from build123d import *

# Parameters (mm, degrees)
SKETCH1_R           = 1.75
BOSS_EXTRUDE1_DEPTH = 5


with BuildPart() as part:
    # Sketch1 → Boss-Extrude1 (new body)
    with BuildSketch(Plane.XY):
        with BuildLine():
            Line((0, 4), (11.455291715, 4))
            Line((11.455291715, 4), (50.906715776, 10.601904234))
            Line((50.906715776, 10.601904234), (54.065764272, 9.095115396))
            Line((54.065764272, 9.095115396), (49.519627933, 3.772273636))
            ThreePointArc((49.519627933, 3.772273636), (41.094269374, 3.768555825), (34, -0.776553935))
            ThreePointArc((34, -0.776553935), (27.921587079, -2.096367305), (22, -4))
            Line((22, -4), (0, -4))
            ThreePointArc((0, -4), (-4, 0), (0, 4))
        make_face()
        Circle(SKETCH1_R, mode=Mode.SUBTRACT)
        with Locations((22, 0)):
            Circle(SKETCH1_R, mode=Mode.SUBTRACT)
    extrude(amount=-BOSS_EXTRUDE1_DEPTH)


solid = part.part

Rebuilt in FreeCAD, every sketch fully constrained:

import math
import FreeCAD as App
import Part
import Sketcher
Q = App.Units.Quantity

doc = App.newDocument("Part")
body = doc.addObject("PartDesign::Body", "Body")

# Sketch on XY plane
sketch1 = body.newObject("Sketcher::SketchObject", "Sketch")
sketch1.AttachmentSupport = (doc.getObject("XY_Plane"), [""])
sketch1.MapMode = "FlatFace"
sketch1.addGeometry(Part.LineSegment(App.Vector(11.5, 4, 0), App.Vector(0, 4, 0)), False)
sketch1.addGeometry(Part.ArcOfCircle(Part.Circle(App.Vector(0, 0, 0), App.Vector(0, 0, 1), 4), math.radians(90), math.radians(270)), False)
sketch1.addGeometry(Part.LineSegment(App.Vector(0, -4, 0), App.Vector(22, -4, 0)), False)
sketch1.addGeometry(Part.ArcOfCircle(Part.Circle(App.Vector(44.5, -63.9, 0), App.Vector(0, 0, 1), 64), math.radians(99.47), math.radians(110.61)), False)
sketch1.addGeometry(Part.ArcOfCircle(Part.Circle(App.Vector(45.3, -10.6, 0), App.Vector(0, 0, 1), 15), math.radians(74), math.radians(139)), False)
sketch1.addGeometry(Part.LineSegment(App.Vector(49.5, 3.8, 0), App.Vector(54.1, 9.1, 0)), False)
sketch1.addGeometry(Part.LineSegment(App.Vector(54.1, 9.1, 0), App.Vector(50.9, 10.6, 0)), False)
sketch1.addGeometry(Part.LineSegment(App.Vector(50.9, 10.6, 0), App.Vector(11.5, 4, 0)), False)
sketch1.addGeometry(Part.Circle(App.Vector(22, 0, 0), App.Vector(0, 0, 1), 1.8), False)
sketch1.addGeometry(Part.Circle(App.Vector(0, 0, 0), App.Vector(0, 0, 1), 1.8), False)
sketch1.addConstraint(Sketcher.Constraint("Tangent", 0, 2, 1, 1))
sketch1.addConstraint(Sketcher.Constraint("Tangent", 1, 2, 2, 1))
sketch1.addConstraint(Sketcher.Constraint("Coincident", 2, 2, 3, 2))
sketch1.addConstraint(Sketcher.Constraint("Coincident", 3, 1, 4, 2))
sketch1.addConstraint(Sketcher.Constraint("Coincident", 4, 1, 5, 1))
sketch1.addConstraint(Sketcher.Constraint("Coincident", 5, 2, 6, 1))
sketch1.addConstraint(Sketcher.Constraint("Coincident", 6, 2, 7, 1))
sketch1.addConstraint(Sketcher.Constraint("Coincident", 7, 2, 0, 1))
sketch1.addConstraint(Sketcher.Constraint("Horizontal", 0))
sketch1.addConstraint(Sketcher.Constraint("Horizontal", 2))
sketch1.addConstraint(Sketcher.Constraint("Coincident", 1, 3, -1, 1))
sketch1.addConstraint(Sketcher.Constraint("Coincident", 9, 3, -1, 1))
sketch1.addConstraint(Sketcher.Constraint("Equal", 8, 9))
sketch1.addConstraint(Sketcher.Constraint("PointOnObject", 8, 3, -1))
sketch1.addConstraint(Sketcher.Constraint("Vertical", 8, 3, 2, 2))
sketch1.addConstraint(Sketcher.Constraint("Radius", 1, 4.0))
sketch1.addConstraint(Sketcher.Constraint("Radius", 3, 64.0))
sketch1.addConstraint(Sketcher.Constraint("Radius", 4, 15.0))
sketch1.addConstraint(Sketcher.Constraint("Diameter", 8, 3.5))
sketch1.addConstraint(Sketcher.Constraint("DistanceX", 2, 1, 2, 2, 22.0))
sketch1.addConstraint(Sketcher.Constraint("Distance", 5, 7.0))
sketch1.addConstraint(Sketcher.Constraint("Distance", 7, 40.0))
sketch1.addConstraint(Sketcher.Constraint("DistanceX", -1, 1, 3, 1, 34.0))
sketch1.addConstraint(Sketcher.Constraint("Angle", 5, Q("49.5 deg")))
sketch1.addConstraint(Sketcher.Constraint("Angle", 6, Q("154.5 deg")))
sketch1.addConstraint(Sketcher.Constraint("Angle", 7, Q("-170.5 deg")))
sketch1.addConstraint(Sketcher.Constraint("Distance", 6, 3.5))
sketch1.addConstraint(Sketcher.Constraint("DistanceX", 0, 2, 0, 1, 11.455292))
sketch1.addConstraint(Sketcher.Constraint("DistanceX", -1, 1, 4, 3, 45.313301))
pad1 = body.newObject("PartDesign::Pad", "Pad")
pad1.Profile = sketch1
pad1.Length = 5
pad1.Reversed = True

doc.recompute()
